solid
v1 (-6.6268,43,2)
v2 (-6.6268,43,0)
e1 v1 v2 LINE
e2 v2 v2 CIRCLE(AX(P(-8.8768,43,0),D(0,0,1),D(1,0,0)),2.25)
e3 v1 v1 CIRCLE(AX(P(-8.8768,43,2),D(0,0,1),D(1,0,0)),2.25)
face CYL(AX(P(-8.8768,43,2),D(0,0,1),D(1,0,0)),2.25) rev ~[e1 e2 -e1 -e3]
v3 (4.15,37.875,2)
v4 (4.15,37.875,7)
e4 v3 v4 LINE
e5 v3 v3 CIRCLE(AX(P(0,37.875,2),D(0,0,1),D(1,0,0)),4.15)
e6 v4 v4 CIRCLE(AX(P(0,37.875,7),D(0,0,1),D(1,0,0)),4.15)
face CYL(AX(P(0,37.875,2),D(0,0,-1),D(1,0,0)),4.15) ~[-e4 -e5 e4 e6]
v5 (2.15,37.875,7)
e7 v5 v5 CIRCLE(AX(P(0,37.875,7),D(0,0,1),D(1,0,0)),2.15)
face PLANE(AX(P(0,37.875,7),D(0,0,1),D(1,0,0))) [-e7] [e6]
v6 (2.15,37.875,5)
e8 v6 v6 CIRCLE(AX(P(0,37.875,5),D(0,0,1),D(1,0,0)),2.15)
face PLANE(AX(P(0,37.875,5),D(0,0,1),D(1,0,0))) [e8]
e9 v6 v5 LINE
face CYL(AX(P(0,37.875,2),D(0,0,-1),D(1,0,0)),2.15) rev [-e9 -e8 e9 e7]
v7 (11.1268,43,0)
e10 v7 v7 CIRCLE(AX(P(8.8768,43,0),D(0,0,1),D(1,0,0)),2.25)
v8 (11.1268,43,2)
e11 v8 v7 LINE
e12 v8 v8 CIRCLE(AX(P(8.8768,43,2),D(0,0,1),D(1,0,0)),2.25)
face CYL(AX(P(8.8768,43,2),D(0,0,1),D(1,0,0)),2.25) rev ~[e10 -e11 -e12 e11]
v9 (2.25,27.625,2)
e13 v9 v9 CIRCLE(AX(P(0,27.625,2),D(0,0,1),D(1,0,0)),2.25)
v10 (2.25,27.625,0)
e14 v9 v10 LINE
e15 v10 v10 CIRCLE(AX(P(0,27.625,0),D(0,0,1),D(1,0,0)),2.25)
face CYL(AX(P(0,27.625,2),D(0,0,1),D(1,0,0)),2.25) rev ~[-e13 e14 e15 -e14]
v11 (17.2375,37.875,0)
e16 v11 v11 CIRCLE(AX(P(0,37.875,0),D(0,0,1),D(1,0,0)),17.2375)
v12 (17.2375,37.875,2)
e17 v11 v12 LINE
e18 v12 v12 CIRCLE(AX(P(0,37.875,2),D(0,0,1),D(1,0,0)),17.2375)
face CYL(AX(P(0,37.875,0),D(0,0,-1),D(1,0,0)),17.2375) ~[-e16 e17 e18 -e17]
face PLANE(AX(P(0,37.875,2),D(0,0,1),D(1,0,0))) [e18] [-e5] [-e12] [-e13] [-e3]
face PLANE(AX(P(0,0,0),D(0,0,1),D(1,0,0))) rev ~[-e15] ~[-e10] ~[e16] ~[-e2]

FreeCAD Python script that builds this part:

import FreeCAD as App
import Part
import Sketcher
Q = App.Units.Quantity

doc = App.newDocument("Part")
params = doc.addObject("Spreadsheet::Sheet", "Params")
for row, (alias, value) in enumerate([
    ("sketch1_diameter", "4 mm"),
    ("pad1_length", "2.54 mm"),
    ("sketch2_diameter", "4 mm"),
    ("pocket1_length", "0.54 mm"),
    ("pad2_length", "2 mm"),
    ("sketch4_diameter", "4.3 mm"),
    ("sketch4_diameter2", "8.3 mm"),
    ("pad3_length", "5 mm"),
    ("sketch5_diameter", "4.3 mm"),
    ("pad4_length", "3 mm"),
    ("sketch6_diameter", "4.5 mm"),
], start=1):
    params.set(f"A{row}", alias)
    params.set(f"B{row}", "=" + value)
    params.setAlias(f"B{row}", alias)

body = doc.addObject("PartDesign::Body", "Body")

# Sketch on XY plane
sketch1 = doc.addObject("Sketcher::SketchObject", "Sketch")
body.addObject(sketch1)
sketch1.AttachmentSupport = (doc.XY_Plane, [""])
sketch1.MapMode = "FlatFace"
sketch1.addGeometry([
    Part.Circle(App.Vector(0, 37.9, 0), App.Vector(0, 0, 1), 17.2),  # 0
    Part.Circle(App.Vector(0, 27.6, 0), App.Vector(0, 0, 1), 2),  # 1
    Part.Circle(App.Vector(-8.9, 43, 0), App.Vector(0, 0, 1), 2),  # 2
    Part.Circle(App.Vector(0, 37.9, 0), App.Vector(0, 0, 1), 2.2),  # 3
    Part.Circle(App.Vector(8.9, 43, 0), App.Vector(0, 0, 1), 2),  # 4
], False)
sketch1.addConstraint([
    Sketcher.Constraint("Coincident", 3, 3, 0, 3),
    Sketcher.Constraint("Equal", 1, 2),
    Sketcher.Constraint("Equal", 2, 4),
    Sketcher.Constraint("Symmetric", 2, 3, 4, 3, -2),
    Sketcher.Constraint("PointOnObject", 0, 3, -2),
    Sketcher.Constraint("PointOnObject", 1, 3, -2),
    Sketcher.Constraint("Diameter", 1, Q("4 mm")),
    Sketcher.Constraint("Diameter", 0, Q("34.475 mm")),
    Sketcher.Constraint("DistanceY", -1, 1, 2, 3, Q("43 mm")),
    Sketcher.Constraint("Diameter", 3, Q("4.3334 mm")),
    Sketcher.Constraint("DistanceY", 1, 3, 0, 3, Q("10.25 mm")),
    Sketcher.Constraint("DistanceY", -1, 1, 0, 3, Q("37.875 mm")),
    Sketcher.Constraint("DistanceX", 2, 3, -1, 1, Q("8.8768 mm")),
])
sketch1.setExpression("Constraints[6]", "Params.sketch1_diameter")
pad1 = doc.addObject("PartDesign::Pad", "Pad")
body.addObject(pad1)
pad1.Profile = sketch1
pad1.setExpression("Length", "Params.pad1_length")

# Sketch on XY plane
sketch2 = doc.addObject("Sketcher::SketchObject", "Sketch001")
body.addObject(sketch2)
sketch2.AttachmentSupport = (doc.XY_Plane, [""])
sketch2.MapMode = "FlatFace"
sketch2.AttachmentOffset = App.Placement(App.Vector(0, 0, 2.54), App.Rotation())
sketch2.addGeometry([
    Part.Circle(App.Vector(0, 37.9, 0), App.Vector(0, 0, 1), 17.2),  # 0
    Part.Circle(App.Vector(0, 27.6, 0), App.Vector(0, 0, 1), 2),  # 1
    Part.Circle(App.Vector(-8.9, 43, 0), App.Vector(0, 0, 1), 2),  # 2
    Part.Circle(App.Vector(0, 37.9, 0), App.Vector(0, 0, 1), 2.2),  # 3
    Part.Circle(App.Vector(8.9, 43, 0), App.Vector(0, 0, 1), 2),  # 4
], False)
sketch2.addConstraint([
    Sketcher.Constraint("Coincident", 3, 3, 0, 3),
    Sketcher.Constraint("Equal", 1, 2),
    Sketcher.Constraint("Equal", 2, 4),
    Sketcher.Constraint("Symmetric", 2, 3, 4, 3, -2),
    Sketcher.Constraint("PointOnObject", 0, 3, -2),
    Sketcher.Constraint("PointOnObject", 1, 3, -2),
    Sketcher.Constraint("Diameter", 1, Q("4 mm")),
    Sketcher.Constraint("Diameter", 0, Q("34.475 mm")),
    Sketcher.Constraint("DistanceY", -1, 1, 2, 3, Q("43 mm")),
    Sketcher.Constraint("Diameter", 3, Q("4.3334 mm")),
    Sketcher.Constraint("DistanceY", 1, 3, 0, 3, Q("10.25 mm")),
    Sketcher.Constraint("DistanceY", -1, 1, 0, 3, Q("37.875 mm")),
    Sketcher.Constraint("DistanceX", 2, 3, -1, 1, Q("8.8768 mm")),
])
sketch2.setExpression("Constraints[6]", "Params.sketch2_diameter")
pocket1 = doc.addObject("PartDesign::Pocket", "Pocket")
body.addObject(pocket1)
pocket1.Profile = sketch2
pocket1.setExpression("Length", "Params.pocket1_length")

# Sketch on XY plane
sketch3 = doc.addObject("Sketcher::SketchObject", "Sketch002")
body.addObject(sketch3)
sketch3.AttachmentSupport = (doc.XY_Plane, [""])
sketch3.MapMode = "FlatFace"
sketch3.AttachmentOffset = App.Placement(App.Vector(0, 0, 2), App.Rotation())
sketch3.addGeometry(Part.Circle(App.Vector(0, 37.9, 0), App.Vector(0, 0, 1), 2.2), False)
sketch3.addConstraint([
    Sketcher.Constraint("PointOnObject", 0, 3, -2),
    Sketcher.Constraint("Diameter", 0, Q("4.3334 mm")),
    Sketcher.Constraint("DistanceY", -1, 1, 0, 3, Q("37.875 mm")),
])
pad2 = doc.addObject("PartDesign::Pad", "Pad001")
body.addObject(pad2)
pad2.Profile = sketch3
pad2.setExpression("Length", "Params.pad2_length")
pad2.Reversed = True

# Sketch on XY plane
sketch4 = doc.addObject("Sketcher::SketchObject", "Sketch003")
body.addObject(sketch4)
sketch4.AttachmentSupport = (doc.XY_Plane, [""])
sketch4.MapMode = "FlatFace"
sketch4.AttachmentOffset = App.Placement(App.Vector(0, 0, 2), App.Rotation())
sketch4.addGeometry([
    Part.Circle(App.Vector(0, 37.9, 0), App.Vector(0, 0, 1), 4.2),
    Part.Circle(App.Vector(0, 37.9, 0), App.Vector(0, 0, 1), 2.1),
], False)
sketch4.addConstraint([
    Sketcher.Constraint("Coincident", 1, 3, 0, 3),
    Sketcher.Constraint("PointOnObject", 0, 3, -2),
    Sketcher.Constraint("Diameter", 1, Q("4.3 mm")),
    Sketcher.Constraint("Diameter", 0, Q("8.3 mm")),
    Sketcher.Constraint("DistanceY", -1, 1, 0, 3, Q("37.875 mm")),
])
sketch4.setExpression("Constraints[2]", "Params.sketch4_diameter")
sketch4.setExpression("Constraints[3]", "Params.sketch4_diameter2")
pad3 = doc.addObject("PartDesign::Pad", "Pad002")
body.addObject(pad3)
pad3.Profile = sketch4
pad3.setExpression("Length", "Params.pad3_length")

# Sketch on XY plane
sketch5 = doc.addObject("Sketcher::SketchObject", "Sketch004")
body.addObject(sketch5)
sketch5.AttachmentSupport = (doc.XY_Plane, [""])
sketch5.MapMode = "FlatFace"
sketch5.AttachmentOffset = App.Placement(App.Vector(0, 0, 2), App.Rotation())
sketch5.addGeometry(Part.Circle(App.Vector(0, 37.9, 0), App.Vector(0, 0, 1), 2.1), False)
sketch5.addConstraint([
    Sketcher.Constraint("PointOnObject", 0, 3, -2),
    Sketcher.Constraint("Diameter", 0, Q("4.3 mm")),
    Sketcher.Constraint("DistanceY", -1, 1, 0, 3, Q("37.875 mm")),
])
sketch5.setExpression("Constraints[1]", "Params.sketch5_diameter")
pad4 = doc.addObject("PartDesign::Pad", "Pad003")
body.addObject(pad4)
pad4.Profile = sketch5
pad4.setExpression("Length", "Params.pad4_length")

# Sketch on XY plane
sketch6 = doc.addObject("Sketcher::SketchObject", "Sketch005")
body.addObject(sketch6)
sketch6.AttachmentSupport = (doc.XY_Plane, [""])
sketch6.MapMode = "FlatFace"
sketch6.AttachmentOffset = App.Placement(App.Vector(0, 0, 2), App.Rotation())
sketch6.addGeometry([
    Part.Circle(App.Vector(-8.9, 43, 0), App.Vector(0, 0, 1), 2.2),
    Part.Circle(App.Vector(8.9, 43, 0), App.Vector(0, 0, 1), 2.2),
    Part.Circle(App.Vector(0, 27.6, 0), App.Vector(0, 0, 1), 2.2),
], False)
sketch6.addConstraint([
    Sketcher.Constraint("Equal", 0, 1),
    Sketcher.Constraint("Equal", 1, 2),
    Sketcher.Constraint("Symmetric", 0, 3, 1, 3, -2),
    Sketcher.Constraint("PointOnObject", 2, 3, -2),
    Sketcher.Constraint("Diameter", 0, Q("4.5 mm")),
    Sketcher.Constraint("DistanceY", -1, 1, 0, 3, Q("43 mm")),
    Sketcher.Constraint("DistanceY", -1, 1, 2, 3, Q("27.625 mm")),
    Sketcher.Constraint("DistanceX", 0, 3, -1, 1, Q("8.8768 mm")),
])
sketch6.setExpression("Constraints[4]", "Params.sketch6_diameter")
pocket2 = doc.addObject("PartDesign::Pocket", "Pocket001")
body.addObject(pocket2)
pocket2.Profile = sketch6
pocket2.Type = "ThroughAll"

doc.recompute()
